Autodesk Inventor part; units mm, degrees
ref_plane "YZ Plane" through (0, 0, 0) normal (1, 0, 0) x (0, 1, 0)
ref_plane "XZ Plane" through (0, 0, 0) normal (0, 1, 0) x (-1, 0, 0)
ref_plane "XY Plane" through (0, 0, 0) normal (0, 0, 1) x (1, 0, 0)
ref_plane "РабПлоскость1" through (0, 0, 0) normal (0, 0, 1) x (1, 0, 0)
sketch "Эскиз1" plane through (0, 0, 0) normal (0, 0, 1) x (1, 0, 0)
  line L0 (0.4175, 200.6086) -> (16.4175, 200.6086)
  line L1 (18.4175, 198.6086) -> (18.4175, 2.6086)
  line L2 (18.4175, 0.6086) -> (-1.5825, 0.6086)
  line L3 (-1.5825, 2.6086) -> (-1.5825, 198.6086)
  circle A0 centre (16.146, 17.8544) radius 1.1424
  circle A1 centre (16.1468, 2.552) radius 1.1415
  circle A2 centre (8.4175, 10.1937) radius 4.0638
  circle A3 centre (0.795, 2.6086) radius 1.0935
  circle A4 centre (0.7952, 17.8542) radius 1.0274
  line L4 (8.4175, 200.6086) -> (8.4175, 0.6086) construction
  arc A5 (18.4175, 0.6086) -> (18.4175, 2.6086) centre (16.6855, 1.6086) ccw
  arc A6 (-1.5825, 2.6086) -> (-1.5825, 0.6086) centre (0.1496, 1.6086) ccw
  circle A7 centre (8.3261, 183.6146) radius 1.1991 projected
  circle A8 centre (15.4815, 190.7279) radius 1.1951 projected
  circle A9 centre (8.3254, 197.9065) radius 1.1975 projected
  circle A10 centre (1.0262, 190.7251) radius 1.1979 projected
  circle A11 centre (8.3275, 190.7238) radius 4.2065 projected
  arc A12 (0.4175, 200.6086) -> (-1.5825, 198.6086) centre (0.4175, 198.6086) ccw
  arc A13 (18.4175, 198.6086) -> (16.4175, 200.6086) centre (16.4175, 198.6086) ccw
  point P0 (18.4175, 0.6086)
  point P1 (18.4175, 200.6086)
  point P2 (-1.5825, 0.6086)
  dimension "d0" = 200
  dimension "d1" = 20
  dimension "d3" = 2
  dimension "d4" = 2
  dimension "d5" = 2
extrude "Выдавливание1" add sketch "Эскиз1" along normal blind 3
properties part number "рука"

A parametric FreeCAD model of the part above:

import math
import FreeCAD as App
import Part
import Sketcher
from FreeCAD import Vector
Q = App.Units.Quantity

doc = App.newDocument("Part")
body = doc.addObject("PartDesign::Body", "Body")

# Sketch on XY plane
sketch1 = body.newObject("Sketcher::SketchObject", "Sketch")
sketch1.AttachmentSupport = (doc.getObject("XY_Plane"), [""])
sketch1.MapMode = "FlatFace"
sketch1.addGeometry(Part.LineSegment(Vector(16.4, 200.6, 0), Vector(0.4, 200.6, 0)), False)
sketch1.addGeometry(Part.ArcOfCircle(Part.Circle(Vector(0.4, 198.6, 0), Vector(0, 0, 1), 2), math.radians(90), math.radians(180)), False)
sketch1.addGeometry(Part.LineSegment(Vector(-1.6, 198.6, 0), Vector(-1.6, 2.6, 0)), False)
sketch1.addGeometry(Part.ArcOfCircle(Part.Circle(Vector(0.1, 1.6, 0), Vector(0, 0, 1), 2), math.radians(150), math.radians(210)), False)
sketch1.addGeometry(Part.LineSegment(Vector(-1.6, 0.6, 0), Vector(18.4, 0.6, 0)), False)
sketch1.addGeometry(Part.ArcOfCircle(Part.Circle(Vector(16.7, 1.6, 0), Vector(0, 0, 1), 2), math.radians(-30), math.radians(30)), False)
sketch1.addGeometry(Part.LineSegment(Vector(18.4, 2.6, 0), Vector(18.4, 198.6, 0)), False)
sketch1.addGeometry(Part.ArcOfCircle(Part.Circle(Vector(16.4, 198.6, 0), Vector(0, 0, 1), 2), math.radians(0), math.radians(90)), False)
sketch1.addGeometry(Part.Circle(Vector(0.8, 2.6, 0), Vector(0, 0, 1), 1.1), False)
sketch1.addGeometry(Part.Circle(Vector(0.8, 17.9, 0), Vector(0, 0, 1), 1), False)
sketch1.addGeometry(Part.Circle(Vector(8.4, 10.2, 0), Vector(0, 0, 1), 4.1), False)
sketch1.addGeometry(Part.Circle(Vector(16.1, 2.6, 0), Vector(0, 0, 1), 1.1), False)
sketch1.addGeometry(Part.Circle(Vector(16.1, 17.9, 0), Vector(0, 0, 1), 1.1), False)
sketch1.addGeometry(Part.Circle(Vector(1, 190.7, 0), Vector(0, 0, 1), 1.2), False)
sketch1.addGeometry(Part.Circle(Vector(8.3, 183.6, 0), Vector(0, 0, 1), 1.2), False)
sketch1.addGeometry(Part.Circle(Vector(8.3, 190.7, 0), Vector(0, 0, 1), 4.2), False)
sketch1.addGeometry(Part.Circle(Vector(8.3, 197.9, 0), Vector(0, 0, 1), 1.2), False)
sketch1.addGeometry(Part.Circle(Vector(15.5, 190.7, 0), Vector(0, 0, 1), 1.2), False)
sketch1.addConstraint(Sketcher.Constraint("Tangent", 0, 2, 1, 1))
sketch1.addConstraint(Sketcher.Constraint("Tangent", 1, 2, 2, 1))
sketch1.addConstraint(Sketcher.Constraint("Coincident", 2, 2, 3, 1))
sketch1.addConstraint(Sketcher.Constraint("Coincident", 3, 2, 4, 1))
sketch1.addConstraint(Sketcher.Constraint("Coincident", 4, 2, 5, 1))
sketch1.addConstraint(Sketcher.Constraint("Coincident", 5, 2, 6, 1))
sketch1.addConstraint(Sketcher.Constraint("Tangent", 6, 2, 7, 1))
sketch1.addConstraint(Sketcher.Constraint("Tangent", 7, 2, 0, 1))
sketch1.addConstraint(Sketcher.Constraint("Horizontal", 0))
sketch1.addConstraint(Sketcher.Constraint("Vertical", 2))
sketch1.addConstraint(Sketcher.Constraint("Horizontal", 4))
sketch1.addConstraint(Sketcher.Constraint("Vertical", 6))
sketch1.addConstraint(Sketcher.Constraint("Equal", 1, 3))
sketch1.addConstraint(Sketcher.Constraint("Equal", 3, 5))
sketch1.addConstraint(Sketcher.Constraint("Equal", 5, 7))
sketch1.addConstraint(Sketcher.Constraint("Horizontal", 3, 3, 5, 3))
sketch1.addConstraint(Sketcher.Constraint("Horizontal", 9, 3, 12, 3))
sketch1.addConstraint(Sketcher.Constraint("Horizontal", 8, 3, 2, 2))
sketch1.addConstraint(Sketcher.Constraint("Horizontal", 2, 2, 5, 2))
sketch1.addConstraint(Sketcher.Constraint("Vertical", 8, 3, 9, 3))
sketch1.addConstraint(Sketcher.Constraint("Vertical", 2, 2, 3, 2))
sketch1.addConstraint(Sketcher.Constraint("Radius", 1, Q("2 mm")))
sketch1.addConstraint(Sketcher.Constraint("DistanceX", 4, 1, 4, 2, Q("20 mm")))
sketch1.addConstraint(Sketcher.Constraint("DistanceY", 3, 2, 2, 2, Q("2 mm")))
sketch1.addConstraint(Sketcher.Constraint("DistanceY", 2, 2, 2, 1, Q("196 mm")))
sketch1.addConstraint(Sketcher.Constraint("Diameter", 8, Q("2.187 mm")))
sketch1.addConstraint(Sketcher.Constraint("Diameter", 11, Q("2.283 mm")))
sketch1.addConstraint(Sketcher.Constraint("Diameter", 15, Q("8.413 mm")))
sketch1.addConstraint(Sketcher.Constraint("Diameter", 16, Q("2.395 mm")))
sketch1.addConstraint(Sketcher.Constraint("DistanceX", 1, 3, 10, 3, Q("8 mm")))
sketch1.addConstraint(Sketcher.Constraint("Diameter", 9, Q("2.0548 mm")))
sketch1.addConstraint(Sketcher.Constraint("Diameter", 10, Q("8.1276 mm")))
sketch1.addConstraint(Sketcher.Constraint("Diameter", 12, Q("2.2848 mm")))
sketch1.addConstraint(Sketcher.Constraint("Diameter", 13, Q("2.3958 mm")))
sketch1.addConstraint(Sketcher.Constraint("Diameter", 14, Q("2.3982 mm")))
sketch1.addConstraint(Sketcher.Constraint("Diameter", 17, Q("2.3902 mm")))
sketch1.addConstraint(Sketcher.Constraint("DistanceX", 13, 3, 14, 3, Q("7.3 mm")))
sketch1.addConstraint(Sketcher.Constraint("DistanceX", 14, 3, 12, 3, Q("7.82 mm")))
sketch1.addConstraint(Sketcher.Constraint("DistanceX", 1, 3, 15, 3, Q("7.91 mm")))
sketch1.addConstraint(Sketcher.Constraint("DistanceX", -1, 1, 8, 3, Q("0.795 mm")))
sketch1.addConstraint(Sketcher.Constraint("DistanceY", -1, 1, 11, 3, Q("2.552 mm")))
sketch1.addConstraint(Sketcher.Constraint("DistanceX", -1, 1, 12, 3, Q("16.146 mm")))
sketch1.addConstraint(Sketcher.Constraint("DistanceY", -1, 1, 13, 3, Q("190.725 mm")))
sketch1.addConstraint(Sketcher.Constraint("DistanceY", -1, 1, 17, 3, Q("190.728 mm")))
sketch1.addConstraint(Sketcher.Constraint("DistanceY", 8, 3, 10, 3, Q("7.585 mm")))
sketch1.addConstraint(Sketcher.Constraint("DistanceY", 9, 3, 13, 3, Q("172.871 mm")))
sketch1.addConstraint(Sketcher.Constraint("DistanceY", 14, 3, 1, 3, Q("14.994 mm")))
sketch1.addConstraint(Sketcher.Constraint("DistanceX", 16, 3, 15, 3, Q("0.002 mm")))
sketch1.addConstraint(Sketcher.Constraint("DistanceY", 16, 3, 1, 3, Q("0.702 mm")))
sketch1.addConstraint(Sketcher.Constraint("DistanceX", 15, 3, 17, 3, Q("7.154 mm")))
sketch1.addConstraint(Sketcher.Constraint("DistanceY", 15, 3, 17, 3, Q("0.004 mm")))
sketch1.addConstraint(Sketcher.Constraint("DistanceX", -1, 1, 1, 3, Q("0.4175 mm")))
sketch1.addConstraint(Sketcher.Constraint("DistanceY", -1, 1, 1, 3, Q("198.6086 mm")))
sketch1.addConstraint(Sketcher.Constraint("DistanceX", -1, 1, 11, 3, Q("16.1468 mm")))
pad1 = body.newObject("PartDesign::Pad", "Pad")
pad1.Profile = sketch1
pad1.Length = 3

doc.recompute()
